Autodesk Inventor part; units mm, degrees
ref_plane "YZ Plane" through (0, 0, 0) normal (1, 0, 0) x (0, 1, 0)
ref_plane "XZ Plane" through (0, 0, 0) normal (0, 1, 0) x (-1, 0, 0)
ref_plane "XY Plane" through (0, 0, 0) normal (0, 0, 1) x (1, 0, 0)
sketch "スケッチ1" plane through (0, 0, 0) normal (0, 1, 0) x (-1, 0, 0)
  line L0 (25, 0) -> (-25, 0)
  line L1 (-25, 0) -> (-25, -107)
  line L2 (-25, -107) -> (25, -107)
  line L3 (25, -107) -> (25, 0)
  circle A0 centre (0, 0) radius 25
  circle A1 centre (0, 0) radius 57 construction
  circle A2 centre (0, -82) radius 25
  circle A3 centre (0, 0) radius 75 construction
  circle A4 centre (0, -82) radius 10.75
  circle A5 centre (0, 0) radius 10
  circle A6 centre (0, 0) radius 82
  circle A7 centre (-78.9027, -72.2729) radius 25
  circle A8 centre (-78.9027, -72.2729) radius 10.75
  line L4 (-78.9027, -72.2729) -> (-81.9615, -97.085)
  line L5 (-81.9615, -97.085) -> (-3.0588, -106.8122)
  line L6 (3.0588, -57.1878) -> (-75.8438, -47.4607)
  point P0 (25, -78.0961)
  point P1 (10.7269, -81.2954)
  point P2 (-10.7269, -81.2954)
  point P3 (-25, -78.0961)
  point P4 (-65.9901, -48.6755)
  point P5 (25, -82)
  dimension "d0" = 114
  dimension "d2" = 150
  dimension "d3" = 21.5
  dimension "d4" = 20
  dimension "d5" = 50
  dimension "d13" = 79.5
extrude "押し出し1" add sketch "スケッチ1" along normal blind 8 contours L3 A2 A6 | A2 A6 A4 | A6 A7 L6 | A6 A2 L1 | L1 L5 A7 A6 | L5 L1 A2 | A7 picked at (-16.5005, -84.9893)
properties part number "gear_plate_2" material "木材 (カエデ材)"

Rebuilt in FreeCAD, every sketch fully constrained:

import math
import FreeCAD as App
import Part
import Sketcher
Q = App.Units.Quantity

doc = App.newDocument("Part")
params = doc.addObject("Spreadsheet::Sheet", "Params")
for row, (alias, value) in enumerate([
    ("sketch1_radius", "25 mm"),
    ("sketch1_diameter", "21.5 mm"),
    ("sketch1_radius2", "82 mm"),
    ("sketch1_length", "79.5 mm"),
    ("pad1_length", "8 mm"),
], start=1):
    params.set(f"A{row}", alias)
    params.set(f"B{row}", "=" + value)
    params.setAlias(f"B{row}", alias)

body = doc.addObject("PartDesign::Body", "Body")

# Sketch on XZ plane
sketch1 = body.newObject("Sketcher::SketchObject", "Sketch")
sketch1.AttachmentSupport = (doc.getObject("XZ_Plane"), [""])
sketch1.MapMode = "FlatFace"
sketch1.addGeometry([
    Part.LineSegment(App.Vector(-25, -82, 0), App.Vector(-25, -78.1, 0)),  # 0
    Part.ArcOfCircle(Part.Circle(App.Vector(0, 0, 0), App.Vector(0, 0, 1), 82), math.radians(-107.75), math.radians(-97.52)),  # 1
    Part.ArcOfCircle(Part.Circle(App.Vector(0, -82, 0), App.Vector(0, 0, 1), 10.8), math.radians(176), math.radians(364)),  # 2
    Part.ArcOfCircle(Part.Circle(App.Vector(0, 0, 0), App.Vector(0, 0, 1), 82), math.radians(-82), math.radians(-36)),  # 3
    Part.LineSegment(App.Vector(66, -48.7, 0), App.Vector(75.8, -47.5, 0)),  # 4
    Part.ArcOfCircle(Part.Circle(App.Vector(78.9, -72.3, 0), App.Vector(0, 0, 1), 25), math.radians(-83), math.radians(97)),  # 5
    Part.LineSegment(App.Vector(82, -97.1, 0), App.Vector(3.1, -106.8, 0)),  # 6
    Part.ArcOfCircle(Part.Circle(App.Vector(0, -82, 0), App.Vector(0, 0, 1), 25), math.radians(180), math.radians(277)),  # 7
    Part.Circle(App.Vector(78.9, -72.3, 0), App.Vector(0, 0, 1), 10.8),  # 8
], False)
sketch1.addConstraint([
    Sketcher.Constraint("Coincident", 0, 2, 1, 1),
    Sketcher.Constraint("Coincident", 1, 2, 2, 1),
    Sketcher.Constraint("Coincident", 2, 2, 3, 1),
    Sketcher.Constraint("Coincident", 3, 2, 4, 1),
    Sketcher.Constraint("Tangent", 4, 2, 5, 2),
    Sketcher.Constraint("Tangent", 5, 1, 6, 1),
    Sketcher.Constraint("Tangent", 6, 2, 7, 2),
    Sketcher.Constraint("Tangent", 7, 1, 0, 1),
    Sketcher.Constraint("Vertical", 0),
    Sketcher.Constraint("Coincident", 1, 3, -1, 1),
    Sketcher.Constraint("Coincident", 3, 3, -1, 1),
    Sketcher.Constraint("Coincident", 7, 3, 2, 3),
    Sketcher.Constraint("Coincident", 8, 3, 5, 3),
    Sketcher.Constraint("Equal", 1, 3),
    Sketcher.Constraint("Equal", 5, 7),
    Sketcher.Constraint("Equal", 2, 8),
    Sketcher.Constraint("PointOnObject", 2, 3, -2),
    Sketcher.Constraint("Parallel", 4, 6),
    Sketcher.Constraint("Radius", 5, Q("25 mm")),
    Sketcher.Constraint("Diameter", 8, Q("21.5 mm")),
    Sketcher.Constraint("Radius", 1, Q("82 mm")),
    Sketcher.Constraint("Distance", 6, Q("79.5 mm")),
    Sketcher.Constraint("DistanceY", 2, 3, -1, 1, Q("82 mm")),
    Sketcher.Constraint("DistanceY", 2, 2, 3, 2, Q("32.62 mm")),
])
sketch1.setExpression("Constraints[18]", "Params.sketch1_radius")
sketch1.setExpression("Constraints[19]", "Params.sketch1_diameter")
sketch1.setExpression("Constraints[20]", "Params.sketch1_radius2")
sketch1.setExpression("Constraints[21]", "Params.sketch1_length")
pad1 = body.newObject("PartDesign::Pad", "Pad")
pad1.Profile = sketch1
pad1.setExpression("Length", "Params.pad1_length")
pad1.Reversed = True

doc.recompute()
